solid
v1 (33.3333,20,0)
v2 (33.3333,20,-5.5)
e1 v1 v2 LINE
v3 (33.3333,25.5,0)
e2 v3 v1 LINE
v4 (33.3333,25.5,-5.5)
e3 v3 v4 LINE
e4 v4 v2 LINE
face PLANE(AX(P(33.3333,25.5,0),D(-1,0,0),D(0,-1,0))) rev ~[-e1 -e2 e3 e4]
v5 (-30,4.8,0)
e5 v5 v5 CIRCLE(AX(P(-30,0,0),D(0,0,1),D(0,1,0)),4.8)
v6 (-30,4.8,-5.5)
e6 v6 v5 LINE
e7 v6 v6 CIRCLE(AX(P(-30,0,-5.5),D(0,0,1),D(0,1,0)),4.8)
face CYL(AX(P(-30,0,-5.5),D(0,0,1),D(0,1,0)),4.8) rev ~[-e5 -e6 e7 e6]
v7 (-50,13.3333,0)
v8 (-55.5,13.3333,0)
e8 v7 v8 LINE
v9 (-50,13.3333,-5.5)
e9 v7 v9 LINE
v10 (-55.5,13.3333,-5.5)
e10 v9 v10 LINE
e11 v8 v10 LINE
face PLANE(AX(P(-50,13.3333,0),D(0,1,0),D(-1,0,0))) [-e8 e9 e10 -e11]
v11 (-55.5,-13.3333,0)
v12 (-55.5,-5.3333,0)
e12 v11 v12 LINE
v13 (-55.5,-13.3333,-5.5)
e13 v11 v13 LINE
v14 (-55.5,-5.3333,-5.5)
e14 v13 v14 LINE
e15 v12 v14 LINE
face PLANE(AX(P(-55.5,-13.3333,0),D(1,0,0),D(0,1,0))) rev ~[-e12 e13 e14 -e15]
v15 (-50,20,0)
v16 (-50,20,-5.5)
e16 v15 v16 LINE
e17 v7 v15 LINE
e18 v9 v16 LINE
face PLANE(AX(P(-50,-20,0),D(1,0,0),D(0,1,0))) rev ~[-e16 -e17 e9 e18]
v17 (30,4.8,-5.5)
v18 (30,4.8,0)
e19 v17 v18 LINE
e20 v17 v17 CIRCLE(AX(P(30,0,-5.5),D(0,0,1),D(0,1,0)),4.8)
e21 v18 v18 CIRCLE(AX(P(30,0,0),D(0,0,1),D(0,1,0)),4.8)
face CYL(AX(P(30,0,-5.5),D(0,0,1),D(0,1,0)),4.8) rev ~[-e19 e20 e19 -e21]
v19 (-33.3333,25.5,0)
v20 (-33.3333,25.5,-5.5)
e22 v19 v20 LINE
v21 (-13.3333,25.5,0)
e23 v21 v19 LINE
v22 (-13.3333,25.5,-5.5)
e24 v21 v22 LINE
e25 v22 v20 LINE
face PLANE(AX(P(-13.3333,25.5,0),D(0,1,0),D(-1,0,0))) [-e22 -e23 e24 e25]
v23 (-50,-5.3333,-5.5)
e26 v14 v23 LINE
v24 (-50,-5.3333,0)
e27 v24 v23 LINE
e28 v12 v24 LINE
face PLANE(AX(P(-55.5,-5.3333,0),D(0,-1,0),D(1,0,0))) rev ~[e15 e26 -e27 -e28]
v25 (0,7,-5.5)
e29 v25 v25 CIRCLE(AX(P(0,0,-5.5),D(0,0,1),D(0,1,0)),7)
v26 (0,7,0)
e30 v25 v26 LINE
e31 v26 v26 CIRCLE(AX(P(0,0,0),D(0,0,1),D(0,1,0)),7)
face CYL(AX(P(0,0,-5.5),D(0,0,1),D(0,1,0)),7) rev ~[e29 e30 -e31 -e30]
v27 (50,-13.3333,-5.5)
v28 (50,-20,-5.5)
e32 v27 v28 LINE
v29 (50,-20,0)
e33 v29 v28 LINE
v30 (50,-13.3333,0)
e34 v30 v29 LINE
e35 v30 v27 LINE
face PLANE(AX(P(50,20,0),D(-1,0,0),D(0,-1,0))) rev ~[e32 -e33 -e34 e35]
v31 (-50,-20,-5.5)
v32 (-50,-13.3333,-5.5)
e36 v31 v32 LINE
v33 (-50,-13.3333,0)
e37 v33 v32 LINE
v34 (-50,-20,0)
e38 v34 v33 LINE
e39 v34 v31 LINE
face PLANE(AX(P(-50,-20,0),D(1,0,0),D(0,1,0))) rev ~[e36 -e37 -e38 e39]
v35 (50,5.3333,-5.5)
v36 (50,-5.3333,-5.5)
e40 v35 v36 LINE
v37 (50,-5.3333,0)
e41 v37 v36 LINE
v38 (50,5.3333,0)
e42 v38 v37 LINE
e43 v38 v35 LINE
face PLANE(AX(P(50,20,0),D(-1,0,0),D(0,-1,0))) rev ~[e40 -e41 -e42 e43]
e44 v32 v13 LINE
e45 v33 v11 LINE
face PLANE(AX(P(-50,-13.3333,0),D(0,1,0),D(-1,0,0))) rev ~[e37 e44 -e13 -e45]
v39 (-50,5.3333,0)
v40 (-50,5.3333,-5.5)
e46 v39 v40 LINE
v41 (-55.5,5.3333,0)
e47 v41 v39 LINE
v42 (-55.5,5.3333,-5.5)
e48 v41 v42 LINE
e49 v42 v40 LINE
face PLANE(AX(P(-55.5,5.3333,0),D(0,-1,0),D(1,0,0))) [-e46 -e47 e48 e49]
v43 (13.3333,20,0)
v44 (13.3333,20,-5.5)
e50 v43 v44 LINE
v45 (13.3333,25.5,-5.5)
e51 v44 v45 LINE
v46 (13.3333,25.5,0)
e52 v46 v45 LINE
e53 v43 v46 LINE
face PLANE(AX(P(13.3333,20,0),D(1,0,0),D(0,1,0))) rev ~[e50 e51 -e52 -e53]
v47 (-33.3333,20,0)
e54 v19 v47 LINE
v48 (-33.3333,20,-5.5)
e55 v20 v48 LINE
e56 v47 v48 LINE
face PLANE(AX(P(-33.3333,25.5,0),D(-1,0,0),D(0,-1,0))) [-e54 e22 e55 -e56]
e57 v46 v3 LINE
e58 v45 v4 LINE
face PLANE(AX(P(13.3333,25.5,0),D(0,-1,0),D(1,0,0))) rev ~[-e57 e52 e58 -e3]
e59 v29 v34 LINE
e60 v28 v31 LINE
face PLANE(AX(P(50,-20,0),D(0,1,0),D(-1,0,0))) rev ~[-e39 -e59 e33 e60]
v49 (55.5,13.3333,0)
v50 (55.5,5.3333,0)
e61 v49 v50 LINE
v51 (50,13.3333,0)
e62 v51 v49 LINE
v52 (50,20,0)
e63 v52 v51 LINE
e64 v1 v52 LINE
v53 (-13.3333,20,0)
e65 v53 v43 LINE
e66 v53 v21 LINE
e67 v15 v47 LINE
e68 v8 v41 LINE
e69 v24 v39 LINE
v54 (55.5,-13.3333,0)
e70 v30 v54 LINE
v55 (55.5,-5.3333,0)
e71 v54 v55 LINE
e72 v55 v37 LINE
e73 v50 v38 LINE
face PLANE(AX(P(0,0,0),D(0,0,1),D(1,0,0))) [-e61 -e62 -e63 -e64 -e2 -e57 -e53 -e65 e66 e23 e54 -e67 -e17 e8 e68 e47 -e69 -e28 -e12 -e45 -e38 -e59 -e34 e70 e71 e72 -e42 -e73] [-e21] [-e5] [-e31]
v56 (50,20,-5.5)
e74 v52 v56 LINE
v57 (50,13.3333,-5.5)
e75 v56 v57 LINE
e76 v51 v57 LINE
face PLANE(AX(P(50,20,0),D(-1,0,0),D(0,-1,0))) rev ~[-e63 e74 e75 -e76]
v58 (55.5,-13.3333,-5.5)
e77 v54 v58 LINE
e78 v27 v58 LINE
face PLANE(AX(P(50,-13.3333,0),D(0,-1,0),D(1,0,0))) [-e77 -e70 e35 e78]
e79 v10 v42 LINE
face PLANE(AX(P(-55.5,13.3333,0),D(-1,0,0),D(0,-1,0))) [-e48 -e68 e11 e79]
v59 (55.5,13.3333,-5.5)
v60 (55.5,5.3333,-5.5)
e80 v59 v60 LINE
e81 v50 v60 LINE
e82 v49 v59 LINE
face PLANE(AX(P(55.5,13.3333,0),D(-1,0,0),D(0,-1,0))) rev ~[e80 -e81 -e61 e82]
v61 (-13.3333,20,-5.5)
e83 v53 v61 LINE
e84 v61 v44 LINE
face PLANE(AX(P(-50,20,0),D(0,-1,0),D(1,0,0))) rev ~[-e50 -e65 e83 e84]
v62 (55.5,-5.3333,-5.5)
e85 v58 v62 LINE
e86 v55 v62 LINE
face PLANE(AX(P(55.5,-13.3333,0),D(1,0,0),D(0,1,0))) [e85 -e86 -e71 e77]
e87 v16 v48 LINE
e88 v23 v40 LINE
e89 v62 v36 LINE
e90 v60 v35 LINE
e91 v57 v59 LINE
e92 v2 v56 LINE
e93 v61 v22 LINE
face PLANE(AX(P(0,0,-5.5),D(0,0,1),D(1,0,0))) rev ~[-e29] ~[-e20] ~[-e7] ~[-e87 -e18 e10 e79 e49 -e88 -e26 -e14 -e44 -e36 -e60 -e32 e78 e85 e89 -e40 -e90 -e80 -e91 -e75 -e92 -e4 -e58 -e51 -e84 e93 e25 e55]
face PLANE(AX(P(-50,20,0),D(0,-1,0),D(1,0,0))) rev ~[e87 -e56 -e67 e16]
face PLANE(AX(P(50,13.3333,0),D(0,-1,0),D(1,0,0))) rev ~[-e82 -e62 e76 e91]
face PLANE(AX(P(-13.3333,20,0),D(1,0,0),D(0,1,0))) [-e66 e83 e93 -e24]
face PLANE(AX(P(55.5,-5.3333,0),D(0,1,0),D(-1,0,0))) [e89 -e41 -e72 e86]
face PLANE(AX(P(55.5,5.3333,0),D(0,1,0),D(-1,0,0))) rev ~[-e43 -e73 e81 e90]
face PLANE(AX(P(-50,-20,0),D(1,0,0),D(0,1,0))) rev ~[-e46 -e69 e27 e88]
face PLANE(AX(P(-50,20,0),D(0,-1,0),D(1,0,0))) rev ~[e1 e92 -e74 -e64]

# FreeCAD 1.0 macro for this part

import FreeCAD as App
import Part
import Sketcher
Q = App.Units.Quantity

doc = App.newDocument("Part")
body = doc.addObject("PartDesign::Body", "Body")

sketch1 = body.newObject("Sketcher::SketchObject", "Sketch")
sketch1.AttachmentSupport = (doc.getObject("XY_Plane"), [""])
sketch1.MapMode = "FlatFace"
sketch1.addGeometry([
    Part.LineSegment(App.Vector(-50, -20, 0), App.Vector(50, -20, 0)),
    Part.LineSegment(App.Vector(50, -20, 0), App.Vector(50, 20, 0)),
    Part.LineSegment(App.Vector(50, 20, 0), App.Vector(-50, 20, 0)),
    Part.LineSegment(App.Vector(-50, 20, 0), App.Vector(-50, -20, 0)),
], False)
sketch1.addConstraint([
    Sketcher.Constraint("Coincident", 0, 2, 1, 1),
    Sketcher.Constraint("Coincident", 1, 2, 2, 1),
    Sketcher.Constraint("Coincident", 2, 2, 3, 1),
    Sketcher.Constraint("Coincident", 3, 2, 0, 1),
    Sketcher.Constraint("Horizontal", 0),
    Sketcher.Constraint("Vertical", 1),
    Sketcher.Constraint("Horizontal", 2),
    Sketcher.Constraint("Vertical", 3),
    Sketcher.Constraint("Symmetric", 0, 2, 2, 2, -1, 1),
    Sketcher.Constraint("DistanceX", 0, 1, 0, 2, Q("100 mm")),
    Sketcher.Constraint("DistanceY", 1, 1, 1, 2, Q("40 mm")),
])
pad1 = body.newObject("PartDesign::Pad", "Pad")
pad1.Profile = sketch1
pad1.Length = 5.5
pad1.Reversed = True

sketch2 = body.newObject("Sketcher::SketchObject", "Sketch001")
sketch2.AttachmentSupport = (doc.getObject("XY_Plane"), [""])
sketch2.MapMode = "FlatFace"
sketch2.AttachmentOffset = App.Placement(App.Vector(0, 0, -5.5), App.Rotation())
sketch2.addGeometry([
    Part.Circle(App.Vector(30, 0, 0), App.Vector(0, 0, 1), 4.8),
    Part.Circle(App.Vector(-30, 0, 0), App.Vector(0, 0, 1), 4.8),
], False)
sketch2.addConstraint([
    Sketcher.Constraint("Equal", 0, 1),
    Sketcher.Constraint("Symmetric", 0, 3, 1, 3, -1, 1),
    Sketcher.Constraint("PointOnObject", 0, 3, -1),
    Sketcher.Constraint("Diameter", 0, Q("9.6 mm")),
    Sketcher.Constraint("DistanceX", -1, 1, 0, 3, Q("30 mm")),
])
doc.recompute()
hole = body.newObject("PartDesign::Hole", "Hole")
hole.Profile = sketch2
hole.ThreadType = "None"
hole.Diameter = 9.6
hole.DepthType = "ThroughAll"
hole.Reversed = True

sketch3 = body.newObject("Sketcher::SketchObject", "Sketch002")
sketch3.AttachmentSupport = (doc.getObject("XY_Plane"), [""])
sketch3.MapMode = "FlatFace"
sketch3.AttachmentOffset = App.Placement(App.Vector(0, 0, -5.5), App.Rotation())
sketch3.addGeometry(Part.Circle(App.Vector(0, 0, 0), App.Vector(0, 0, 1), 7), False)
sketch3.addConstraint([
    Sketcher.Constraint("Coincident", 0, 3, -1, 1),
    Sketcher.Constraint("Diameter", 0, Q("14 mm")),
])
doc.recompute()
hole2 = body.newObject("PartDesign::Hole", "Hole001")
hole2.Profile = sketch3
hole2.ThreadType = "None"
hole2.Diameter = 14
hole2.DepthType = "ThroughAll"
hole2.Reversed = True

sketch4 = body.newObject("Sketcher::SketchObject", "Sketch003")
sketch4.AttachmentSupport = (doc.getObject("XY_Plane"), [""])
sketch4.MapMode = "FlatFace"
sketch4.addGeometry([
    Part.LineSegment(App.Vector(-50, -13, 0), App.Vector(-50, -5, 0)),
    Part.LineSegment(App.Vector(-50, -5, 0), App.Vector(-56, -5, 0)),
    Part.LineSegment(App.Vector(-56, -5, 0), App.Vector(-56, -13, 0)),
    Part.LineSegment(App.Vector(-56, -13, 0), App.Vector(-50, -13, 0)),
    Part.LineSegment(App.Vector(-50, 5, 0), App.Vector(-50, 13, 0)),
    Part.LineSegment(App.Vector(-50, 13, 0), App.Vector(-56, 13, 0)),
    Part.LineSegment(App.Vector(-56, 13, 0), App.Vector(-56, 5, 0)),
    Part.LineSegment(App.Vector(-56, 5, 0), App.Vector(-50, 5, 0)),
    Part.LineSegment(App.Vector(56, 13, 0), App.Vector(50, 13, 0)),
    Part.LineSegment(App.Vector(50, 13, 0), App.Vector(50, 5, 0)),
    Part.LineSegment(App.Vector(50, 5, 0), App.Vector(56, 5, 0)),
    Part.LineSegment(App.Vector(56, 5, 0), App.Vector(56, 13, 0)),
    Part.LineSegment(App.Vector(50, -5, 0), App.Vector(50, -13, 0)),
    Part.LineSegment(App.Vector(50, -13, 0), App.Vector(56, -13, 0)),
    Part.LineSegment(App.Vector(56, -13, 0), App.Vector(56, -5, 0)),
    Part.LineSegment(App.Vector(56, -5, 0), App.Vector(50, -5, 0)),
], False)
sketch4.addConstraint([
    Sketcher.Constraint("Coincident", 0, 2, 1, 1),
    Sketcher.Constraint("Coincident", 1, 2, 2, 1),
    Sketcher.Constraint("Coincident", 2, 2, 3, 1),
    Sketcher.Constraint("Coincident", 3, 2, 0, 1),
    Sketcher.Constraint("Coincident", 4, 2, 5, 1),
    Sketcher.Constraint("Coincident", 5, 2, 6, 1),
    Sketcher.Constraint("Coincident", 6, 2, 7, 1),
    Sketcher.Constraint("Coincident", 7, 2, 4, 1),
    Sketcher.Constraint("Coincident", 8, 2, 9, 1),
    Sketcher.Constraint("Coincident", 9, 2, 10, 1),
    Sketcher.Constraint("Coincident", 10, 2, 11, 1),
    Sketcher.Constraint("Coincident", 11, 2, 8, 1),
    Sketcher.Constraint("Coincident", 12, 2, 13, 1),
    Sketcher.Constraint("Coincident", 13, 2, 14, 1),
    Sketcher.Constraint("Coincident", 14, 2, 15, 1),
    Sketcher.Constraint("Coincident", 15, 2, 12, 1),
    Sketcher.Constraint("Vertical", 0),
    Sketcher.Constraint("Horizontal", 1),
    Sketcher.Constraint("Vertical", 2),
    Sketcher.Constraint("Horizontal", 3),
    Sketcher.Constraint("Vertical", 4),
    Sketcher.Constraint("Horizontal", 5),
    Sketcher.Constraint("Vertical", 6),
    Sketcher.Constraint("Horizontal", 7),
    Sketcher.Constraint("Horizontal", 8),
    Sketcher.Constraint("Vertical", 9),
    Sketcher.Constraint("Horizontal", 10),
    Sketcher.Constraint("Vertical", 11),
    Sketcher.Constraint("Vertical", 12),
    Sketcher.Constraint("Horizontal", 13),
    Sketcher.Constraint("Vertical", 14),
    Sketcher.Constraint("Horizontal", 15),
    Sketcher.Constraint("Symmetric", 3, 2, 8, 2, -1, 1),
    Sketcher.Constraint("Symmetric", 1, 2, 10, 2, -1, 1),
    Sketcher.Constraint("Symmetric", 4, 2, 12, 2, -1, 1),
    Sketcher.Constraint("Symmetric", 6, 2, 14, 2, -1, 1),
    Sketcher.Constraint("Symmetric", 4, 2, 8, 2, -2),
    Sketcher.Constraint("Symmetric", 6, 2, 10, 2, -2),
    Sketcher.Constraint("DistanceY", 0, 1, 0, 2, Q("8 mm")),
    Sketcher.Constraint("DistanceX", 1, 2, 1, 1, Q("5.5 mm")),
    Sketcher.Constraint("DistanceX", 0, 2, -1, 1, Q("50 mm")),
    Sketcher.Constraint("DistanceY", 0, 2, -1, 1, Q("5.3333 mm")),
])
pad2 = body.newObject("PartDesign::Pad", "Pad001")
pad2.Profile = sketch4
pad2.Length = 5.5
pad2.Reversed = True

sketch5 = body.newObject("Sketcher::SketchObject", "Sketch004")
sketch5.AttachmentSupport = (doc.getObject("XY_Plane"), [""])
sketch5.MapMode = "FlatFace"
sketch5.addGeometry([
    Part.LineSegment(App.Vector(-33, 26, 0), App.Vector(-33, 20, 0)),
    Part.LineSegment(App.Vector(-33, 20, 0), App.Vector(-13, 20, 0)),
    Part.LineSegment(App.Vector(-13, 20, 0), App.Vector(-13, 26, 0)),
    Part.LineSegment(App.Vector(-13, 26, 0), App.Vector(-33, 26, 0)),
    Part.LineSegment(App.Vector(13, 26, 0), App.Vector(13, 20, 0)),
    Part.LineSegment(App.Vector(13, 20, 0), App.Vector(33, 20, 0)),
    Part.LineSegment(App.Vector(33, 20, 0), App.Vector(33, 26, 0)),
    Part.LineSegment(App.Vector(33, 26, 0), App.Vector(13, 26, 0)),
], False)
sketch5.addConstraint([
    Sketcher.Constraint("Coincident", 0, 2, 1, 1),
    Sketcher.Constraint("Coincident", 1, 2, 2, 1),
    Sketcher.Constraint("Coincident", 2, 2, 3, 1),
    Sketcher.Constraint("Coincident", 3, 2, 0, 1),
    Sketcher.Constraint("Coincident", 4, 2, 5, 1),
    Sketcher.Constraint("Coincident", 5, 2, 6, 1),
    Sketcher.Constraint("Coincident", 6, 2, 7, 1),
    Sketcher.Constraint("Coincident", 7, 2, 4, 1),
    Sketcher.Constraint("Vertical", 0),
    Sketcher.Constraint("Horizontal", 1),
    Sketcher.Constraint("Vertical", 2),
    Sketcher.Constraint("Horizontal", 3),
    Sketcher.Constraint("Vertical", 4),
    Sketcher.Constraint("Horizontal", 5),
    Sketcher.Constraint("Vertical", 6),
    Sketcher.Constraint("Horizontal", 7),
    Sketcher.Constraint("Symmetric", 1, 2, 4, 2, -2),
    Sketcher.Constraint("Symmetric", 3, 2, 6, 2, -2),
    Sketcher.Constraint("DistanceX", 1, 1, 1, 2, Q("20 mm")),
    Sketcher.Constraint("DistanceY", 0, 2, 0, 1, Q("5.5 mm")),
    Sketcher.Constraint("DistanceY", -1, 1, 0, 2, Q("20 mm")),
    Sketcher.Constraint("DistanceX", 0, 2, -1, 1, Q("33.3333 mm")),
])
pad3 = body.newObject("PartDesign::Pad", "Pad002")
pad3.Profile = sketch5
pad3.Length = 5.5
pad3.Reversed = True

doc.recompute()
